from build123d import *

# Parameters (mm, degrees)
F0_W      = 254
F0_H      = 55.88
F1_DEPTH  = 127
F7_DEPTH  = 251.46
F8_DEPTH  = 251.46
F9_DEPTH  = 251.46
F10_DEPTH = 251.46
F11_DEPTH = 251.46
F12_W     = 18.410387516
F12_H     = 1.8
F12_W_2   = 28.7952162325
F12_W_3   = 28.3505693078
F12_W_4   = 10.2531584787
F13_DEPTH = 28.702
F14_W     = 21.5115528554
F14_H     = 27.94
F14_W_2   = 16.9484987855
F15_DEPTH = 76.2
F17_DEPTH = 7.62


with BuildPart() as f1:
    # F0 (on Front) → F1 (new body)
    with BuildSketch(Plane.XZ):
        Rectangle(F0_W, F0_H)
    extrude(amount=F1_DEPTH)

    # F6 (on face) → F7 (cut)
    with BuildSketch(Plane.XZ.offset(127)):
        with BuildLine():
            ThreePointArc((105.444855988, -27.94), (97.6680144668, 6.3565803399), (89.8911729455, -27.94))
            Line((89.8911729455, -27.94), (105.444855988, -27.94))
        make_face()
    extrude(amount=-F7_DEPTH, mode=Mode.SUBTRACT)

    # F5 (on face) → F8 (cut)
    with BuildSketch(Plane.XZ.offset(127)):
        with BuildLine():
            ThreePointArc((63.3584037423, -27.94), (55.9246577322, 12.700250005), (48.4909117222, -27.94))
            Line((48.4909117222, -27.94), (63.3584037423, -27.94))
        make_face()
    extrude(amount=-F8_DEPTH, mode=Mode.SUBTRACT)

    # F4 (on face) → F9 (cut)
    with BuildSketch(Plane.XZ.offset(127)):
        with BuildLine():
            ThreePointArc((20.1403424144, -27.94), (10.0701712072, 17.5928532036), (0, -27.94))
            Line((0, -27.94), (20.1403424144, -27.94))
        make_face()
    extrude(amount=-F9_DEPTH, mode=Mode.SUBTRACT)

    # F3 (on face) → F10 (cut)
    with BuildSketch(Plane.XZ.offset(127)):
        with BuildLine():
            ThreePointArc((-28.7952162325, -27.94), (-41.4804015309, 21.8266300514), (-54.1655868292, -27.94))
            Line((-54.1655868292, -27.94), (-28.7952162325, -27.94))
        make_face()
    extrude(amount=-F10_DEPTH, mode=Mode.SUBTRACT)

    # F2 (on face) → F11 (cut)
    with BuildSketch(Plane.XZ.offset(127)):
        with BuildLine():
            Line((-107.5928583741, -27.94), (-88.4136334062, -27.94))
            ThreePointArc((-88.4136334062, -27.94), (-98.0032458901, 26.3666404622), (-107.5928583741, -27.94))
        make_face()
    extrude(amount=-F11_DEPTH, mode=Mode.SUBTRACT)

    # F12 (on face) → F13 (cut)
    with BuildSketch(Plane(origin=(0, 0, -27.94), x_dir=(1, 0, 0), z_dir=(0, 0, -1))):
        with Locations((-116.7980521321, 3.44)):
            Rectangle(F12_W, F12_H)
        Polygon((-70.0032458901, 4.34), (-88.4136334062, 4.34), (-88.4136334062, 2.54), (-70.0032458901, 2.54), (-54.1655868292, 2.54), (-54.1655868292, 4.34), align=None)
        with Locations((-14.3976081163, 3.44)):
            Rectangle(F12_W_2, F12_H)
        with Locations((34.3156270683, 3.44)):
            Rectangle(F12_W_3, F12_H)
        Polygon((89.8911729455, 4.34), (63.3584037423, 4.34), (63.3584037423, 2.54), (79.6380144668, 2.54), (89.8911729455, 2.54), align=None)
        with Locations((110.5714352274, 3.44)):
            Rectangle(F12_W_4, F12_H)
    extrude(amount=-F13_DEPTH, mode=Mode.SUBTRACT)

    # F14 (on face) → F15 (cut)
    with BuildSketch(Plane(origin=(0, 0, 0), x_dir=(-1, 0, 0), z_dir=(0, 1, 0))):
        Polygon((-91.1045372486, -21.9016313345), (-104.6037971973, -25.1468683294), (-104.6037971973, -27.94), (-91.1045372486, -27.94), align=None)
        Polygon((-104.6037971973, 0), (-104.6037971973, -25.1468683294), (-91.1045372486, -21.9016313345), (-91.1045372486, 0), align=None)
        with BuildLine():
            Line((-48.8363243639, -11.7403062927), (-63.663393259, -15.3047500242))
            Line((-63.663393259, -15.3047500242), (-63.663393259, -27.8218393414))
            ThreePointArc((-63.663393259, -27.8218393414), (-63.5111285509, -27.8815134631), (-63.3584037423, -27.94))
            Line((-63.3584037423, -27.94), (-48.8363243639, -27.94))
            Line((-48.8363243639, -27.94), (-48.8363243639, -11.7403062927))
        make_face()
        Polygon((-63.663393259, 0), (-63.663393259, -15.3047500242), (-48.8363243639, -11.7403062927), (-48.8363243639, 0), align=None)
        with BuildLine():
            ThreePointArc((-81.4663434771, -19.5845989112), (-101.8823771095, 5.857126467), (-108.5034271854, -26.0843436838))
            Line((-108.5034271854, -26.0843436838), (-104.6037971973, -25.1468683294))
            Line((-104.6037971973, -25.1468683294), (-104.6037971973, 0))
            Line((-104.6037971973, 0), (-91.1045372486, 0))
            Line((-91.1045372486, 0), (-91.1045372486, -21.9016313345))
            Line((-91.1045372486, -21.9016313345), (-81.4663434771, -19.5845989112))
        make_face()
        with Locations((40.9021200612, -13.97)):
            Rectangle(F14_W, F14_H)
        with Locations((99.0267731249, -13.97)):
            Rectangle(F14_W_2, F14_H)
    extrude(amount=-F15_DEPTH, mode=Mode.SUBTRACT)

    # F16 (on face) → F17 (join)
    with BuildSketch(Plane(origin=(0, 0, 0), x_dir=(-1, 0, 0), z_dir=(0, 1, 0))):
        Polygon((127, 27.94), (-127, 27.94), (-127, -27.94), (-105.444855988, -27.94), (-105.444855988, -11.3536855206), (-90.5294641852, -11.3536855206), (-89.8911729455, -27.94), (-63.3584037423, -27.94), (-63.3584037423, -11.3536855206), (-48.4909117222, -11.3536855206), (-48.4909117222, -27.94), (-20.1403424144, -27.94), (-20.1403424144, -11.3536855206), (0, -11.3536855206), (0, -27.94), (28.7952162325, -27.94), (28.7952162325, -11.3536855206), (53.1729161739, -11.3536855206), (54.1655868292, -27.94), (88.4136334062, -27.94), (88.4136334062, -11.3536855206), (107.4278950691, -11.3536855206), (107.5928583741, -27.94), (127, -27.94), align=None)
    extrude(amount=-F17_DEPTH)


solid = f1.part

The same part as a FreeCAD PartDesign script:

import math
import FreeCAD as App
import Part
import Sketcher
from FreeCAD import Vector
Q = App.Units.Quantity

doc = App.newDocument("Part")
params = doc.addObject("Spreadsheet::Sheet", "Params")
for row, (alias, value) in enumerate([
    ("sketch1_width", "10 in"),
    ("sketch1_height", "2.2 in"),
    ("pad1_length", "5 in"),
    ("pocket1_length", "9.9 in"),
    ("pocket2_length", "9.9 in"),
    ("pocket3_length", "9.9 in"),
    ("pocket4_length", "9.9 in"),
    ("pocket5_length", "9.9 in"),
    ("pocket6_length", "1.13 in"),
    ("sketch8_height", "1.1 in"),
    ("pocket7_length", "3 in"),
    ("sketch9_width", "10 in"),
    ("sketch9_height", "2.2 in"),
    ("pad2_length", "0.3 in"),
], start=1):
    params.set(f"A{row}", alias)
    params.set(f"B{row}", "=" + value)
    params.setAlias(f"B{row}", alias)

body = doc.addObject("PartDesign::Body", "Body")

# Sketch on XZ plane
sketch1 = doc.addObject("Sketcher::SketchObject", "Sketch")
body.addObject(sketch1)
sketch1.AttachmentSupport = (doc.XZ_Plane, [""])
sketch1.MapMode = "FlatFace"
sketch1.addGeometry([
    Part.LineSegment(Vector(-127, 28, 0), Vector(-127, -28, 0)),
    Part.LineSegment(Vector(-127, -28, 0), Vector(127, -28, 0)),
    Part.LineSegment(Vector(127, -28, 0), Vector(127, 28, 0)),
    Part.LineSegment(Vector(127, 28, 0), Vector(-127, 28, 0)),
], False)
sketch1.addConstraint([
    Sketcher.Constraint("Coincident", 0, 2, 1, 1),
    Sketcher.Constraint("Coincident", 1, 2, 2, 1),
    Sketcher.Constraint("Coincident", 2, 2, 3, 1),
    Sketcher.Constraint("Coincident", 3, 2, 0, 1),
    Sketcher.Constraint("Vertical", 0),
    Sketcher.Constraint("Horizontal", 1),
    Sketcher.Constraint("Vertical", 2),
    Sketcher.Constraint("Horizontal", 3),
    Sketcher.Constraint("Symmetric", 0, 2, 2, 2, -1, 1),
    Sketcher.Constraint("DistanceX", 1, 1, 1, 2, Q("10 in")),
    Sketcher.Constraint("DistanceY", 0, 2, 0, 1, Q("2.2 in")),
])
sketch1.setExpression("Constraints[9]", "Params.sketch1_width")
sketch1.setExpression("Constraints[10]", "Params.sketch1_height")
pad1 = doc.addObject("PartDesign::Pad", "Pad")
body.addObject(pad1)
pad1.Profile = sketch1
pad1.setExpression("Length", "Params.pad1_length")

# Sketch on XZ plane
sketch2 = doc.addObject("Sketcher::SketchObject", "Sketch001")
body.addObject(sketch2)
sketch2.AttachmentSupport = (doc.XZ_Plane, [""])
sketch2.MapMode = "FlatFace"
sketch2.AttachmentOffset = App.Placement(Vector(0, 0, 5 * 25.4), App.Rotation())
sketch2.addGeometry([
    Part.ArcOfCircle(Part.Circle(Vector(98, -12, 0), Vector(0, 0, 1), 18), math.radians(-64), math.radians(244)),
    Part.LineSegment(Vector(90, -28, 0), Vector(105, -28, 0)),
], False)
sketch2.addConstraint([
    Sketcher.Constraint("Coincident", 0, 1, 1, 2),
    Sketcher.Constraint("Coincident", 1, 1, 0, 2),
    Sketcher.Constraint("Horizontal", 1),
    Sketcher.Constraint("DistanceY", 0, 1, -1, 1, Q("1.1 in")),
    Sketcher.Constraint("Radius", 0, Q("18.03 mm")),
    Sketcher.Constraint("DistanceX", 1, 1, 1, 2, Q("15.553683 mm")),
    Sketcher.Constraint("DistanceX", -1, 1, 0, 3, Q("97.668014 mm")),
])
pocket1 = doc.addObject("PartDesign::Pocket", "Pocket")
body.addObject(pocket1)
pocket1.Profile = sketch2
pocket1.setExpression("Length", "Params.pocket1_length")

# Sketch on XZ plane
sketch3 = doc.addObject("Sketcher::SketchObject", "Sketch002")
body.addObject(sketch3)
sketch3.AttachmentSupport = (doc.XZ_Plane, [""])
sketch3.MapMode = "FlatFace"
sketch3.AttachmentOffset = App.Placement(Vector(0, 0, 5 * 25.4), App.Rotation())
sketch3.addGeometry([
    Part.ArcOfCircle(Part.Circle(Vector(56, -8, 0), Vector(0, 0, 1), 21), math.radians(-69), math.radians(249)),
    Part.LineSegment(Vector(48, -28, 0), Vector(63, -28, 0)),
], False)
sketch3.addConstraint([
    Sketcher.Constraint("Coincident", 0, 1, 1, 2),
    Sketcher.Constraint("Coincident", 1, 1, 0, 2),
    Sketcher.Constraint("Horizontal", 1),
    Sketcher.Constraint("DistanceY", 0, 1, -1, 1, Q("1.1 in")),
    Sketcher.Constraint("Radius", 0, Q("21 mm")),
    Sketcher.Constraint("DistanceX", 1, 1, 1, 2, Q("14.867492 mm")),
    Sketcher.Constraint("DistanceX", -1, 1, 1, 1, Q("48.490912 mm")),
])
pocket2 = doc.addObject("PartDesign::Pocket", "Pocket001")
body.addObject(pocket2)
pocket2.Profile = sketch3
pocket2.setExpression("Length", "Params.pocket2_length")

# Sketch on XZ plane
sketch4 = doc.addObject("Sketcher::SketchObject", "Sketch003")
body.addObject(sketch4)
sketch4.AttachmentSupport = (doc.XZ_Plane, [""])
sketch4.MapMode = "FlatFace"
sketch4.AttachmentOffset = App.Placement(Vector(0, 0, 5 * 25.4), App.Rotation())
sketch4.addGeometry([
    Part.ArcOfCircle(Part.Circle(Vector(10, -6, 0), Vector(0, 0, 1), 24), math.radians(-65), math.radians(245)),
    Part.LineSegment(Vector(0, -28, 0), Vector(20, -28, 0)),
], False)
sketch4.addConstraint([
    Sketcher.Constraint("Coincident", 0, 1, 1, 2),
    Sketcher.Constraint("Coincident", 1, 1, 0, 2),
    Sketcher.Constraint("Horizontal", 1),
    Sketcher.Constraint("PointOnObject", 1, 1, -2),
    Sketcher.Constraint("DistanceY", 0, 1, -1, 1, Q("1.1 in")),
    Sketcher.Constraint("Radius", 0, Q("23.88 mm")),
    Sketcher.Constraint("DistanceX", 1, 1, 1, 2, Q("20.140342 mm")),
])
pocket3 = doc.addObject("PartDesign::Pocket", "Pocket002")
body.addObject(pocket3)
pocket3.Profile = sketch4
pocket3.setExpression("Length", "Params.pocket3_length")

# Sketch on XZ plane
sketch5 = doc.addObject("Sketcher::SketchObject", "Sketch004")
body.addObject(sketch5)
sketch5.AttachmentSupport = (doc.XZ_Plane, [""])
sketch5.MapMode = "FlatFace"
sketch5.AttachmentOffset = App.Placement(Vector(0, 0, 5 * 25.4), App.Rotation())
sketch5.addGeometry([
    Part.ArcOfCircle(Part.Circle(Vector(-41, -5, 0), Vector(0, 0, 1), 26), math.radians(-61), math.radians(241)),
    Part.LineSegment(Vector(-54, -28, 0), Vector(-29, -28, 0)),
], False)
sketch5.addConstraint([
    Sketcher.Constraint("Coincident", 0, 1, 1, 2),
    Sketcher.Constraint("Coincident", 1, 1, 0, 2),
    Sketcher.Constraint("Horizontal", 1),
    Sketcher.Constraint("DistanceY", 0, 1, -1, 1, Q("1.1 in")),
    Sketcher.Constraint("Radius", 0, Q("26.5 mm")),
    Sketcher.Constraint("DistanceX", 1, 1, 1, 2, Q("25.370371 mm")),
    Sketcher.Constraint("DistanceX", 0, 3, -1, 1, Q("41.480402 mm")),
])
pocket4 = doc.addObject("PartDesign::Pocket", "Pocket003")
body.addObject(pocket4)
pocket4.Profile = sketch5
pocket4.setExpression("Length", "Params.pocket4_length")

# Sketch on XZ plane
sketch6 = doc.addObject("Sketcher::SketchObject", "Sketch005")
body.addObject(sketch6)
sketch6.AttachmentSupport = (doc.XZ_Plane, [""])
sketch6.MapMode = "FlatFace"
sketch6.AttachmentOffset = App.Placement(Vector(0, 0, 5 * 25.4), App.Rotation())
sketch6.addGeometry([
    Part.LineSegment(Vector(-108, -28, 0), Vector(-88, -28, 0)),
    Part.ArcOfCircle(Part.Circle(Vector(-98, -2, 0), Vector(0, 0, 1), 28), math.radians(-70), math.radians(250)),
], False)
sketch6.addConstraint([
    Sketcher.Constraint("Coincident", 0, 1, 1, 2),
    Sketcher.Constraint("Coincident", 1, 1, 0, 2),
    Sketcher.Constraint("Horizontal", 0),
    Sketcher.Constraint("DistanceY", 0, 1, -1, 1, Q("1.1 in")),
    Sketcher.Constraint("Radius", 1, Q("28 mm")),
    Sketcher.Constraint("DistanceX", 0, 1, 0, 2, Q("19.179225 mm")),
    Sketcher.Constraint("DistanceX", 0, 1, -1, 1, Q("107.592858 mm")),
])
pocket5 = doc.addObject("PartDesign::Pocket", "Pocket004")
body.addObject(pocket5)
pocket5.Profile = sketch6
pocket5.setExpression("Length", "Params.pocket5_length")

# Sketch on XY plane
sketch7 = doc.addObject("Sketcher::SketchObject", "Sketch006")
body.addObject(sketch7)
sketch7.AttachmentSupport = (doc.XY_Plane, [""])
sketch7.MapMode = "FlatFace"
sketch7.AttachmentOffset = App.Placement(Vector(0, 0, -1.1 * 25.4), App.Rotation())
sketch7.addGeometry([
    Part.LineSegment(Vector(-126, -4.3, 0), Vector(-126, -2.5, 0)),  # 0
    Part.LineSegment(Vector(-126, -2.5, 0), Vector(-107.6, -2.5, 0)),  # 1
    Part.LineSegment(Vector(-107.6, -2.5, 0), Vector(-107.6, -4.3, 0)),  # 2
    Part.LineSegment(Vector(-107.6, -4.3, 0), Vector(-126, -4.3, 0)),  # 3
    Part.LineSegment(Vector(-88.4, -4.3, 0), Vector(-88.4, -2.5, 0)),  # 4
    Part.LineSegment(Vector(-88.4, -2.5, 0), Vector(-54.2, -2.5, 0)),  # 5
    Part.LineSegment(Vector(-54.2, -2.5, 0), Vector(-54.2, -4.3, 0)),  # 6
    Part.LineSegment(Vector(-54.2, -4.3, 0), Vector(-88.4, -4.3, 0)),  # 7
    Part.LineSegment(Vector(-28.8, -4.3, 0), Vector(-28.8, -2.5, 0)),  # 8
    Part.LineSegment(Vector(-28.8, -2.5, 0), Vector(0, -2.5, 0)),  # 9
    Part.LineSegment(Vector(0, -2.5, 0), Vector(0, -4.3, 0)),  # 10
    Part.LineSegment(Vector(0, -4.3, 0), Vector(-28.8, -4.3, 0)),  # 11
    Part.LineSegment(Vector(20.1, -4.3, 0), Vector(20.1, -2.5, 0)),  # 12
    Part.LineSegment(Vector(20.1, -2.5, 0), Vector(48.5, -2.5, 0)),  # 13
    Part.LineSegment(Vector(48.5, -2.5, 0), Vector(48.5, -4.3, 0)),  # 14
    Part.LineSegment(Vector(48.5, -4.3, 0), Vector(20.1, -4.3, 0)),  # 15
    Part.LineSegment(Vector(89.9, -4.3, 0), Vector(63.4, -4.3, 0)),  # 16
    Part.LineSegment(Vector(63.4, -4.3, 0), Vector(63.4, -2.5, 0)),  # 17
    Part.LineSegment(Vector(63.4, -2.5, 0), Vector(89.9, -2.5, 0)),  # 18
    Part.LineSegment(Vector(89.9, -2.5, 0), Vector(89.9, -4.3, 0)),  # 19
    Part.LineSegment(Vector(105.4, -4.3, 0), Vector(105.4, -2.5, 0)),  # 20
    Part.LineSegment(Vector(105.4, -2.5, 0), Vector(115.7, -2.5, 0)),  # 21
    Part.LineSegment(Vector(115.7, -2.5, 0), Vector(115.7, -4.3, 0)),  # 22
    Part.LineSegment(Vector(115.7, -4.3, 0), Vector(105.4, -4.3, 0)),  # 23
], False)
sketch7.addConstraint([
    Sketcher.Constraint("Coincident", 0, 2, 1, 1),
    Sketcher.Constraint("Coincident", 1, 2, 2, 1),
    Sketcher.Constraint("Coincident", 2, 2, 3, 1),
    Sketcher.Constraint("Coincident", 3, 2, 0, 1),
    Sketcher.Constraint("Coincident", 4, 2, 5, 1),
    Sketcher.Constraint("Coincident", 5, 2, 6, 1),
    Sketcher.Constraint("Coincident", 6, 2, 7, 1),
    Sketcher.Constraint("Coincident", 7, 2, 4, 1),
    Sketcher.Constraint("Coincident", 8, 2, 9, 1),
    Sketcher.Constraint("Coincident", 9, 2, 10, 1),
    Sketcher.Constraint("Coincident", 10, 2, 11, 1),
    Sketcher.Constraint("Coincident", 11, 2, 8, 1),
    Sketcher.Constraint("Coincident", 12, 2, 13, 1),
    Sketcher.Constraint("Coincident", 13, 2, 14, 1),
    Sketcher.Constraint("Coincident", 14, 2, 15, 1),
    Sketcher.Constraint("Coincident", 15, 2, 12, 1),
    Sketcher.Constraint("Coincident", 16, 2, 17, 1),
    Sketcher.Constraint("Coincident", 17, 2, 18, 1),
    Sketcher.Constraint("Coincident", 18, 2, 19, 1),
    Sketcher.Constraint("Coincident", 19, 2, 16, 1),
    Sketcher.Constraint("Coincident", 20, 2, 21, 1),
    Sketcher.Constraint("Coincident", 21, 2, 22, 1),
    Sketcher.Constraint("Coincident", 22, 2, 23, 1),
    Sketcher.Constraint("Coincident", 23, 2, 20, 1),
    Sketcher.Constraint("Vertical", 0),
    Sketcher.Constraint("Horizontal", 1),
    Sketcher.Constraint("Vertical", 2),
    Sketcher.Constraint("Horizontal", 3),
    Sketcher.Constraint("Vertical", 4),
    Sketcher.Constraint("Horizontal", 5),
    Sketcher.Constraint("Vertical", 6),
    Sketcher.Constraint("Horizontal", 7),
    Sketcher.Constraint("Vertical", 8),
    Sketcher.Constraint("Horizontal", 9),
    Sketcher.Constraint("Vertical", 10),
    Sketcher.Constraint("Horizontal", 11),
    Sketcher.Constraint("Vertical", 12),
    Sketcher.Constraint("Horizontal", 13),
    Sketcher.Constraint("Vertical", 14),
    Sketcher.Constraint("Horizontal", 15),
    Sketcher.Constraint("Horizontal", 16),
    Sketcher.Constraint("Vertical", 17),
    Sketcher.Constraint("Horizontal", 18),
    Sketcher.Constraint("Vertical", 19),
    Sketcher.Constraint("Vertical", 20),
    Sketcher.Constraint("Horizontal", 21),
    Sketcher.Constraint("Vertical", 22),
    Sketcher.Constraint("Horizontal", 23),
    Sketcher.Constraint("PointOnObject", 9, 2, -2),
    Sketcher.Constraint("Horizontal", 1, 2, 4, 2),
    Sketcher.Constraint("Horizontal", 3, 2, 6, 2),
    Sketcher.Constraint("Horizontal", 5, 2, 8, 2),
    Sketcher.Constraint("Horizontal", 7, 2, 10, 2),
    Sketcher.Constraint("Horizontal", 9, 2, 12, 2),
    Sketcher.Constraint("Horizontal", 11, 2, 14, 2),
    Sketcher.Constraint("Horizontal", 15, 2, 16, 2),
    Sketcher.Constraint("Horizontal", 13, 2, 17, 2),
    Sketcher.Constraint("Horizontal", 18, 2, 20, 2),
    Sketcher.Constraint("Horizontal", 19, 2, 22, 2),
    Sketcher.Constraint("DistanceY", 0, 2, -1, 1, Q("0.1 in")),
    Sketcher.Constraint("DistanceY", 0, 1, 0, 2, Q("1.8 mm")),
    Sketcher.Constraint("DistanceX", 13, 1, 13, 2, Q("28.350569 mm")),
    Sketcher.Constraint("DistanceX", 16, 2, 16, 1, Q("26.532769 mm")),
    Sketcher.Constraint("DistanceX", 21, 1, 21, 2, Q("10.253158 mm")),
    Sketcher.Constraint("DistanceX", 1, 1, 1, 2, Q("18.410388 mm")),
    Sketcher.Constraint("DistanceX", 5, 1, 5, 2, Q("34.248047 mm")),
    Sketcher.Constraint("DistanceX", 9, 1, 9, 2, Q("28.795216 mm")),
    Sketcher.Constraint("DistanceX", 1, 2, -1, 1, Q("107.592858 mm")),
    Sketcher.Constraint("DistanceX", -1, 1, 13, 2, Q("48.490912 mm")),
    Sketcher.Constraint("DistanceX", 1, 2, 5, 2, Q("53.427272 mm")),
    Sketcher.Constraint("DistanceX", 15, 2, 16, 2, Q("43.218061 mm")),
    Sketcher.Constraint("DistanceX", 18, 2, 21, 2, Q("25.806842 mm")),
])
pocket6 = doc.addObject("PartDesign::Pocket", "Pocket005")
body.addObject(pocket6)
pocket6.Profile = sketch7
pocket6.setExpression("Length", "Params.pocket6_length")
pocket6.Reversed = True

# Sketch on XZ plane
sketch8 = doc.addObject("Sketcher::SketchObject", "Sketch007")
body.addObject(sketch8)
sketch8.AttachmentSupport = (doc.XZ_Plane, [""])
sketch8.MapMode = "FlatFace"
sketch8.addGeometry([
    Part.LineSegment(Vector(104.6, -27.94, 0), Vector(91.1, -27.94, 0)),  # 0
    Part.LineSegment(Vector(91.1, -27.94, 0), Vector(91.1, -21.9, 0)),  # 1
    Part.LineSegment(Vector(91.1, -21.9, 0), Vector(81.47, -19.58, 0)),  # 2
    Part.ArcOfCircle(Part.Circle(Vector(97.67, -11.67, 0), Vector(0, 0, 1), 18.03), math.radians(-53), math.radians(206)),  # 3
    Part.LineSegment(Vector(108.5, -26.08, 0), Vector(104.6, -25.15, 0)),  # 4
    Part.LineSegment(Vector(104.6, -25.15, 0), Vector(104.6, -27.94, 0)),  # 5
    Part.ArcOfCircle(Part.Circle(Vector(55.92, -8.3, 0), Vector(0, 0, 1), 21), math.radians(-69.27), math.radians(-68.38)),  # 6
    Part.LineSegment(Vector(63.36, -27.94, 0), Vector(48.84, -27.94, 0)),  # 7
    Part.LineSegment(Vector(48.84, -27.94, 0), Vector(48.84, 0, 0)),  # 8
    Part.LineSegment(Vector(48.84, 0, 0), Vector(63.66, 0, 0)),  # 9
    Part.LineSegment(Vector(63.66, 0, 0), Vector(63.66, -27.82, 0)),  # 10
    Part.LineSegment(Vector(-30.15, 0, 0), Vector(-30.15, -27.94, 0)),  # 11
    Part.LineSegment(Vector(-30.15, -27.94, 0), Vector(-51.66, -27.94, 0)),  # 12
    Part.LineSegment(Vector(-51.66, -27.94, 0), Vector(-51.66, 0, 0)),  # 13
    Part.LineSegment(Vector(-51.66, 0, 0), Vector(-30.15, 0, 0)),  # 14
    Part.LineSegment(Vector(-90.55, 0, 0), Vector(-90.55, -27.94, 0)),  # 15
    Part.LineSegment(Vector(-90.55, -27.94, 0), Vector(-107.5, -27.94, 0)),  # 16
    Part.LineSegment(Vector(-107.5, -27.94, 0), Vector(-107.5, 0, 0)),  # 17
    Part.LineSegment(Vector(-107.5, 0, 0), Vector(-90.55, 0, 0)),  # 18
], False)
sketch8.addConstraint([
    Sketcher.Constraint("Coincident", 0, 2, 1, 1),
    Sketcher.Constraint("Coincident", 1, 2, 2, 1),
    Sketcher.Constraint("Coincident", 2, 2, 3, 2),
    Sketcher.Constraint("Coincident", 3, 1, 4, 1),
    Sketcher.Constraint("Coincident", 4, 2, 5, 1),
    Sketcher.Constraint("Coincident", 5, 2, 0, 1),
    Sketcher.Constraint("Coincident", 6, 1, 7, 1),
    Sketcher.Constraint("Coincident", 7, 2, 8, 1),
    Sketcher.Constraint("Coincident", 8, 2, 9, 1),
    Sketcher.Constraint("Coincident", 9, 2, 10, 1),
    Sketcher.Constraint("Coincident", 10, 2, 6, 2),
    Sketcher.Constraint("Coincident", 11, 2, 12, 1),
    Sketcher.Constraint("Coincident", 12, 2, 13, 1),
    Sketcher.Constraint("Coincident", 13, 2, 14, 1),
    Sketcher.Constraint("Coincident", 14, 2, 11, 1),
    Sketcher.Constraint("Coincident", 15, 2, 16, 1),
    Sketcher.Constraint("Coincident", 16, 2, 17, 1),
    Sketcher.Constraint("Coincident", 17, 2, 18, 1),
    Sketcher.Constraint("Coincident", 18, 2, 15, 1),
    Sketcher.Constraint("Horizontal", 0),
    Sketcher.Constraint("Vertical", 1),
    Sketcher.Constraint("Vertical", 5),
    Sketcher.Constraint("Horizontal", 7),
    Sketcher.Constraint("Vertical", 8),
    Sketcher.Constraint("Horizontal", 9),
    Sketcher.Constraint("Vertical", 10),
    Sketcher.Constraint("Vertical", 11),
    Sketcher.Constraint("Horizontal", 12),
    Sketcher.Constraint("Vertical", 13),
    Sketcher.Constraint("Horizontal", 14),
    Sketcher.Constraint("Vertical", 15),
    Sketcher.Constraint("Horizontal", 16),
    Sketcher.Constraint("Vertical", 17),
    Sketcher.Constraint("Horizontal", 18),
    Sketcher.Constraint("PointOnObject", 8, 2, -1),
    Sketcher.Constraint("PointOnObject", 13, 2, -1),
    Sketcher.Constraint("PointOnObject", 17, 2, -1),
    Sketcher.Constraint("Parallel", 2, 4),
    Sketcher.Constraint("Horizontal", 5, 2, 6, 1),
    Sketcher.Constraint("Horizontal", 7, 2, 11, 2),
    Sketcher.Constraint("Horizontal", 12, 2, 15, 2),
    Sketcher.Constraint("DistanceY", 8, 1, 8, 2, Q("1.1 in")),
    Sketcher.Constraint("Radius", 3, Q("18.03 mm")),
    Sketcher.Constraint("Radius", 6, Q("20.999999 mm")),
    Sketcher.Constraint("DistanceX", 16, 2, 16, 1, Q("16.948499 mm")),
    Sketcher.Constraint("DistanceX", 0, 2, 0, 1, Q("13.49926 mm")),
    Sketcher.Constraint("DistanceX", 7, 2, 7, 1, Q("14.522079 mm")),
    Sketcher.Constraint("DistanceX", 9, 1, 9, 2, Q("14.827069 mm")),
    Sketcher.Constraint("DistanceY", 1, 1, 1, 2, Q("6.038369 mm")),
    Sketcher.Constraint("DistanceY", 5, 2, 5, 1, Q("2.793132 mm")),
    Sketcher.Constraint("DistanceY", 10, 2, 10, 1, Q("27.821839 mm")),
    Sketcher.Constraint("DistanceY", 2, 2, -1, 1, Q("19.584599 mm")),
    Sketcher.Constraint("DistanceX", 11, 2, 6, 3, Q("86.071002 mm")),
    Sketcher.Constraint("DistanceX", 12, 2, 6, 1, Q("115.0163 mm")),
    Sketcher.Constraint("Distance", 2, Q("9.912791 mm")),
    Sketcher.Constraint("DistanceY", 3, 3, -1, 1, Q("11.67342 mm")),
    Sketcher.Constraint("DistanceX", -1, 1, 6, 3, Q("55.924658 mm")),
    Sketcher.Constraint("DistanceX", 6, 3, 0, 2, Q("35.179879 mm")),
    Sketcher.Constraint("DistanceX", 15, 2, 11, 2, Q("60.40618 mm")),
])
sketch8.setExpression("Constraints[41]", "Params.sketch8_height")
pocket7 = doc.addObject("PartDesign::Pocket", "Pocket006")
body.addObject(pocket7)
pocket7.Profile = sketch8
pocket7.setExpression("Length", "Params.pocket7_length")
pocket7.Reversed = True

# Sketch on XZ plane
sketch9 = doc.addObject("Sketcher::SketchObject", "Sketch008")
body.addObject(sketch9)
sketch9.AttachmentSupport = (doc.XZ_Plane, [""])
sketch9.MapMode = "FlatFace"
sketch9.addGeometry([
    Part.LineSegment(Vector(-127, 28, 0), Vector(127, 28, 0)),  # 0
    Part.LineSegment(Vector(127, 28, 0), Vector(127, -28, 0)),  # 1
    Part.LineSegment(Vector(127, -28, 0), Vector(105, -28, 0)),  # 2
    Part.LineSegment(Vector(105, -28, 0), Vector(105, -11, 0)),  # 3
    Part.LineSegment(Vector(105, -11, 0), Vector(91, -11, 0)),  # 4
    Part.LineSegment(Vector(91, -11, 0), Vector(90, -28, 0)),  # 5
    Part.LineSegment(Vector(90, -28, 0), Vector(63, -28, 0)),  # 6
    Part.LineSegment(Vector(63, -28, 0), Vector(63, -11, 0)),  # 7
    Part.LineSegment(Vector(63, -11, 0), Vector(48, -11, 0)),  # 8
    Part.LineSegment(Vector(48, -11, 0), Vector(48, -28, 0)),  # 9
    Part.LineSegment(Vector(48, -28, 0), Vector(20, -28, 0)),  # 10
    Part.LineSegment(Vector(20, -28, 0), Vector(20, -11, 0)),  # 11
    Part.LineSegment(Vector(20, -11, 0), Vector(0, -11, 0)),  # 12
    Part.LineSegment(Vector(0, -11, 0), Vector(0, -28, 0)),  # 13
    Part.LineSegment(Vector(0, -28, 0), Vector(-29, -28, 0)),  # 14
    Part.LineSegment(Vector(-29, -28, 0), Vector(-29, -11, 0)),  # 15
    Part.LineSegment(Vector(-29, -11, 0), Vector(-53, -11, 0)),  # 16
    Part.LineSegment(Vector(-53, -11, 0), Vector(-54, -28, 0)),  # 17
    Part.LineSegment(Vector(-54, -28, 0), Vector(-88, -28, 0)),  # 18
    Part.LineSegment(Vector(-88, -28, 0), Vector(-88, -11, 0)),  # 19
    Part.LineSegment(Vector(-88, -11, 0), Vector(-107, -11, 0)),  # 20
    Part.LineSegment(Vector(-107, -11, 0), Vector(-108, -28, 0)),  # 21
    Part.LineSegment(Vector(-108, -28, 0), Vector(-127, -28, 0)),  # 22
    Part.LineSegment(Vector(-127, -28, 0), Vector(-127, 28, 0)),  # 23
], False)
sketch9.addConstraint([
    Sketcher.Constraint("Coincident", 0, 2, 1, 1),
    Sketcher.Constraint("Coincident", 1, 2, 2, 1),
    Sketcher.Constraint("Coincident", 2, 2, 3, 1),
    Sketcher.Constraint("Coincident", 3, 2, 4, 1),
    Sketcher.Constraint("Coincident", 4, 2, 5, 1),
    Sketcher.Constraint("Coincident", 5, 2, 6, 1),
    Sketcher.Constraint("Coincident", 6, 2, 7, 1),
    Sketcher.Constraint("Coincident", 7, 2, 8, 1),
    Sketcher.Constraint("Coincident", 8, 2, 9, 1),
    Sketcher.Constraint("Coincident", 9, 2, 10, 1),
    Sketcher.Constraint("Coincident", 10, 2, 11, 1),
    Sketcher.Constraint("Coincident", 11, 2, 12, 1),
    Sketcher.Constraint("Coincident", 12, 2, 13, 1),
    Sketcher.Constraint("Coincident", 13, 2, 14, 1),
    Sketcher.Constraint("Coincident", 14, 2, 15, 1),
    Sketcher.Constraint("Coincident", 15, 2, 16, 1),
    Sketcher.Constraint("Coincident", 16, 2, 17, 1),
    Sketcher.Constraint("Coincident", 17, 2, 18, 1),
    Sketcher.Constraint("Coincident", 18, 2, 19, 1),
    Sketcher.Constraint("Coincident", 19, 2, 20, 1),
    Sketcher.Constraint("Coincident", 20, 2, 21, 1),
    Sketcher.Constraint("Coincident", 21, 2, 22, 1),
    Sketcher.Constraint("Coincident", 22, 2, 23, 1),
    Sketcher.Constraint("Coincident", 23, 2, 0, 1),
    Sketcher.Constraint("Horizontal", 0),
    Sketcher.Constraint("Vertical", 1),
    Sketcher.Constraint("Horizontal", 2),
    Sketcher.Constraint("Vertical", 3),
    Sketcher.Constraint("Horizontal", 4),
    Sketcher.Constraint("Horizontal", 6),
    Sketcher.Constraint("Vertical", 7),
    Sketcher.Constraint("Horizontal", 8),
    Sketcher.Constraint("Vertical", 9),
    Sketcher.Constraint("Horizontal", 10),
    Sketcher.Constraint("Vertical", 11),
    Sketcher.Constraint("Horizontal", 12),
    Sketcher.Constraint("Vertical", 13),
    Sketcher.Constraint("Horizontal", 14),
    Sketcher.Constraint("Vertical", 15),
    Sketcher.Constraint("Horizontal", 16),
    Sketcher.Constraint("Horizontal", 18),
    Sketcher.Constraint("Vertical", 19),
    Sketcher.Constraint("Horizontal", 20),
    Sketcher.Constraint("Horizontal", 22),
    Sketcher.Constraint("Vertical", 23),
    Sketcher.Constraint("Symmetric", 0, 2, 22, 2, -1, 1),
    Sketcher.Constraint("PointOnObject", 12, 2, -2),
    Sketcher.Constraint("Horizontal", 2, 2, 5, 2),
    Sketcher.Constraint("Horizontal", 4, 2, 7, 2),
    Sketcher.Constraint("Horizontal", 6, 2, 9, 2),
    Sketcher.Constraint("Horizontal", 8, 2, 11, 2),
    Sketcher.Constraint("Horizontal", 10, 2, 13, 2),
    Sketcher.Constraint("Horizontal", 12, 2, 15, 2),
    Sketcher.Constraint("Horizontal", 14, 2, 17, 2),
    Sketcher.Constraint("Horizontal", 16, 2, 19, 2),
    Sketcher.Constraint("Horizontal", 18, 2, 21, 2),
    Sketcher.Constraint("DistanceX", 0, 1, 0, 2, Q("10 in")),
    Sketcher.Constraint("DistanceY", 1, 2, 1, 1, Q("2.2 in")),
    Sketcher.Constraint("DistanceX", 16, 2, 16, 1, Q("24.3777 mm")),
    Sketcher.Constraint("DistanceX", 4, 2, 4, 1, Q("14.915392 mm")),
    Sketcher.Constraint("DistanceX", 6, 2, 6, 1, Q("26.532769 mm")),
    Sketcher.Constraint("DistanceX", 10, 2, 10, 1, Q("28.350569 mm")),
    Sketcher.Constraint("DistanceX", 20, 2, 20, 1, Q("19.014262 mm")),
    Sketcher.Constraint("DistanceX", 22, 2, 22, 1, Q("19.407142 mm")),
    Sketcher.Constraint("Distance", 5, Q("16.598592 mm")),
    Sketcher.Constraint("DistanceX", 2, 2, 2, 1, Q("21.555144 mm")),
    Sketcher.Constraint("DistanceX", 8, 2, 8, 1, Q("14.867492 mm")),
    Sketcher.Constraint("DistanceX", 12, 2, 12, 1, Q("20.140342 mm")),
    Sketcher.Constraint("DistanceX", 14, 2, 14, 1, Q("28.795216 mm")),
    Sketcher.Constraint("DistanceX", 18, 2, 18, 1, Q("34.248047 mm")),
    Sketcher.Constraint("DistanceX", 17, 2, 16, 2, Q("0.992671 mm")),
])
sketch9.setExpression("Constraints[56]", "Params.sketch9_width")
sketch9.setExpression("Constraints[57]", "Params.sketch9_height")
pad2 = doc.addObject("PartDesign::Pad", "Pad001")
body.addObject(pad2)
pad2.Profile = sketch9
pad2.setExpression("Length", "Params.pad2_length")

doc.recompute()
